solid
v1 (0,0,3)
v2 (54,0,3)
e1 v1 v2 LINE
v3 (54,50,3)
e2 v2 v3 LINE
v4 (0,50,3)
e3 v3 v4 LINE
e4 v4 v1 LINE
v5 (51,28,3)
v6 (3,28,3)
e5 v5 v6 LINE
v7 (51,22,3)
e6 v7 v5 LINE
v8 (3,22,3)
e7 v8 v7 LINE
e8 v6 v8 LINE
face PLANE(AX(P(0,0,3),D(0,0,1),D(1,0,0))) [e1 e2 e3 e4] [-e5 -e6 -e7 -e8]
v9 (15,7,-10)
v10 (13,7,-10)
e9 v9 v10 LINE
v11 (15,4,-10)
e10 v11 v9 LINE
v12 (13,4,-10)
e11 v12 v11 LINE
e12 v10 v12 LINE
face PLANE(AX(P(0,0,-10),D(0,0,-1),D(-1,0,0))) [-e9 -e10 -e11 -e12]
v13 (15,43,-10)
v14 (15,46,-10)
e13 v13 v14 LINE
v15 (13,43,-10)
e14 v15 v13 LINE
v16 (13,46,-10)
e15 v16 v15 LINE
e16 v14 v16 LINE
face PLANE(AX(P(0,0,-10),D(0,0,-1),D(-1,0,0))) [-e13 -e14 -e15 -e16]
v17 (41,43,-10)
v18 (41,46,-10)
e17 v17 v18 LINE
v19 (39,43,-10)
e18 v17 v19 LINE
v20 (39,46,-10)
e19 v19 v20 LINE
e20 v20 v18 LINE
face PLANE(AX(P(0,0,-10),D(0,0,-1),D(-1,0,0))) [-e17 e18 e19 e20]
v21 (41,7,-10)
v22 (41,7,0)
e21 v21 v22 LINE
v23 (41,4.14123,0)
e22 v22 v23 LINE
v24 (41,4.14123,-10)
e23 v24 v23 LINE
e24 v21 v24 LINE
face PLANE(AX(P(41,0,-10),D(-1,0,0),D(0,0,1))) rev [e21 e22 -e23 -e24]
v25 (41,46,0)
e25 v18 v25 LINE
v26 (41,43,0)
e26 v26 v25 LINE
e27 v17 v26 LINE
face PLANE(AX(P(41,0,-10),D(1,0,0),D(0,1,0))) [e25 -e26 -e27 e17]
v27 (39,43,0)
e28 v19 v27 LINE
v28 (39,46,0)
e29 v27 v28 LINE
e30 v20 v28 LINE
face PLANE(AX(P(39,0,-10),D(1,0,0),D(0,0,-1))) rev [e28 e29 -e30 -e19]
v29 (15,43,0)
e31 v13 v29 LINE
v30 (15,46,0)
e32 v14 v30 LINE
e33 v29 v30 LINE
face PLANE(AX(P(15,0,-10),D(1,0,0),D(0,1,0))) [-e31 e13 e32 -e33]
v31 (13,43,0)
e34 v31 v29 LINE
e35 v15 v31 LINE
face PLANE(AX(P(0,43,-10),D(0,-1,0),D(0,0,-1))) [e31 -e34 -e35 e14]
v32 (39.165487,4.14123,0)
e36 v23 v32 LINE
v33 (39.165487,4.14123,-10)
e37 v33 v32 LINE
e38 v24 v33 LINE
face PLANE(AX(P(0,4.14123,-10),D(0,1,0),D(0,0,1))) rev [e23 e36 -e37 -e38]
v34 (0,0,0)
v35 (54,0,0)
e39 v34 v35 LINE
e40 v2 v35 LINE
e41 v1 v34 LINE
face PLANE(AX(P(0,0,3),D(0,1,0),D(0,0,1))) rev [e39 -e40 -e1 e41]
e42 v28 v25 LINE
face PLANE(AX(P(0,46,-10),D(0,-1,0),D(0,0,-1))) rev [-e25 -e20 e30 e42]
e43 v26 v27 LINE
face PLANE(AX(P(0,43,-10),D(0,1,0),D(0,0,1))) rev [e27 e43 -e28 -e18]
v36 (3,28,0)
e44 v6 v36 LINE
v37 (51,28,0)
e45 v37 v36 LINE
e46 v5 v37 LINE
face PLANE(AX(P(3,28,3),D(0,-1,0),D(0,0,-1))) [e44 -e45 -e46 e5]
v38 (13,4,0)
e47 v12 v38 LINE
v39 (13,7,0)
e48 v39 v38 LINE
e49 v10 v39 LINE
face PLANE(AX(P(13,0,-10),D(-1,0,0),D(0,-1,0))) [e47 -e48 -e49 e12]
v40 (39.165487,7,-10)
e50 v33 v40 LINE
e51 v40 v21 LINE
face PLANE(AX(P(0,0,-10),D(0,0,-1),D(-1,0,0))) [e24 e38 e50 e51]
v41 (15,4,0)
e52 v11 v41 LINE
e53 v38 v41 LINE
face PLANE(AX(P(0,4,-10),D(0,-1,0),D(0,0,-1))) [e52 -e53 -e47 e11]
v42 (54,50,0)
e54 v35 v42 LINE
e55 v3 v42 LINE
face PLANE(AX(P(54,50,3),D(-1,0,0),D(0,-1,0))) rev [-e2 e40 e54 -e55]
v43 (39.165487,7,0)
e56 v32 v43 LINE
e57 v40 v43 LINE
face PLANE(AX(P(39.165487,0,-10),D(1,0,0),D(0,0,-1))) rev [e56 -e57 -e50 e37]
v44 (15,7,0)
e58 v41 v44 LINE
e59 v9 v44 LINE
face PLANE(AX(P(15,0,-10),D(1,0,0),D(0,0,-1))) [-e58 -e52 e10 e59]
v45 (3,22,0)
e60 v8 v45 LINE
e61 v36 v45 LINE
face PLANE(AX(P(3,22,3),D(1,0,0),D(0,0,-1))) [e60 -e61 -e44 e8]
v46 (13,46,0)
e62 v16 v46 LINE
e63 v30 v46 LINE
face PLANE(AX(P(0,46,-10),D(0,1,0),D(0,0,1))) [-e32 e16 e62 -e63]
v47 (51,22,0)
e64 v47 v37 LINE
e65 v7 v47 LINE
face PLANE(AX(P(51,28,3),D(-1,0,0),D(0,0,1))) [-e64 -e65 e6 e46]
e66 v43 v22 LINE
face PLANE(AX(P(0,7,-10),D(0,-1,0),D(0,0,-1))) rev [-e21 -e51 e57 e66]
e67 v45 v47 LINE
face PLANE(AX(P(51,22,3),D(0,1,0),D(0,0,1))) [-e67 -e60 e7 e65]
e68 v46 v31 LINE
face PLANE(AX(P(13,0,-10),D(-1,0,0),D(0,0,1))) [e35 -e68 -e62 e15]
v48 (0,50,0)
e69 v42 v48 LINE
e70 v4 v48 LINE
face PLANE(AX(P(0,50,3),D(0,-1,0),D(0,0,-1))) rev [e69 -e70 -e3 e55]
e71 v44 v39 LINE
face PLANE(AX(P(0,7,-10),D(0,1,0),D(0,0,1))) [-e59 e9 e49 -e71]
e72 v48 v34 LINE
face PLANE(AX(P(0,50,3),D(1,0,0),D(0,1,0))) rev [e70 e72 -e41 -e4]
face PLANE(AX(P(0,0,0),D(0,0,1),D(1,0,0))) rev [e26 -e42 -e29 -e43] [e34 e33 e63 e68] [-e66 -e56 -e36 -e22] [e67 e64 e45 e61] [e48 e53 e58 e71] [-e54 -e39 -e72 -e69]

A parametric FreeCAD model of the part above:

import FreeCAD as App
import Part
import Sketcher

doc = App.newDocument("Part")
params = doc.addObject("Spreadsheet::Sheet", "Params")
for row, (alias, value) in enumerate([
    ("sketch1_width", "54 mm"),
    ("sketch1_width2", "48 mm"),
    ("sketch1_height", "50 mm"),
    ("sketch1_height2", "6 mm"),
    ("pad1_length", "3 mm"),
    ("sketch2_width", "2 mm"),
    ("sketch2_height", "3 mm"),
    ("pad2_length", "10 mm"),
], start=1):
    params.set(f"A{row}", alias)
    params.set(f"B{row}", "=" + value)
    params.setAlias(f"B{row}", alias)

body = doc.addObject("PartDesign::Body", "Body")

# Sketch on XY plane
sketch1 = body.newObject("Sketcher::SketchObject", "Sketch")
sketch1.AttachmentSupport = (doc.getObject("XY_Plane"), [""])
sketch1.MapMode = "FlatFace"
sketch1.addGeometry([
    Part.LineSegment(App.Vector(0, 50, 0), App.Vector(0, 0, 0)),  # 0
    Part.LineSegment(App.Vector(0, 0, 0), App.Vector(54, 0, 0)),  # 1
    Part.LineSegment(App.Vector(54, 0, 0), App.Vector(54, 50, 0)),  # 2
    Part.LineSegment(App.Vector(54, 50, 0), App.Vector(0, 50, 0)),  # 3
    Part.LineSegment(App.Vector(51, 22, 0), App.Vector(3, 22, 0)),  # 4
    Part.LineSegment(App.Vector(3, 22, 0), App.Vector(3, 28, 0)),  # 5
    Part.LineSegment(App.Vector(3, 28, 0), App.Vector(51, 28, 0)),  # 6
    Part.LineSegment(App.Vector(51, 28, 0), App.Vector(51, 22, 0)),  # 7
], False)
sketch1.addConstraint([
    Sketcher.Constraint("Coincident", 0, 2, 1, 1),
    Sketcher.Constraint("Coincident", 1, 2, 2, 1),
    Sketcher.Constraint("Coincident", 2, 2, 3, 1),
    Sketcher.Constraint("Coincident", 3, 2, 0, 1),
    Sketcher.Constraint("Coincident", 4, 2, 5, 1),
    Sketcher.Constraint("Coincident", 5, 2, 6, 1),
    Sketcher.Constraint("Coincident", 6, 2, 7, 1),
    Sketcher.Constraint("Coincident", 7, 2, 4, 1),
    Sketcher.Constraint("Vertical", 0),
    Sketcher.Constraint("Horizontal", 1),
    Sketcher.Constraint("Vertical", 2),
    Sketcher.Constraint("Horizontal", 3),
    Sketcher.Constraint("Horizontal", 4),
    Sketcher.Constraint("Vertical", 5),
    Sketcher.Constraint("Horizontal", 6),
    Sketcher.Constraint("Vertical", 7),
    Sketcher.Constraint("Coincident", 0, 2, -1, 1),
    Sketcher.Constraint("DistanceX", 1, 1, 1, 2, 54.0),
    Sketcher.Constraint("DistanceX", 4, 2, 4, 1, 48.0),
    Sketcher.Constraint("DistanceY", 0, 2, 0, 1, 50.0),
    Sketcher.Constraint("DistanceY", 5, 1, 5, 2, 6.0),
    Sketcher.Constraint("DistanceX", -1, 1, 4, 2, 3.0),
    Sketcher.Constraint("DistanceY", -1, 1, 4, 2, 22.0),
])
sketch1.setExpression("Constraints[17]", "Params.sketch1_width")
sketch1.setExpression("Constraints[18]", "Params.sketch1_width2")
sketch1.setExpression("Constraints[19]", "Params.sketch1_height")
sketch1.setExpression("Constraints[20]", "Params.sketch1_height2")
pad1 = body.newObject("PartDesign::Pad", "Pad")
pad1.Profile = sketch1
pad1.setExpression("Length", "Params.pad1_length")

# Sketch on XY plane
sketch2 = body.newObject("Sketcher::SketchObject", "Sketch001")
sketch2.AttachmentSupport = (doc.getObject("XY_Plane"), [""])
sketch2.MapMode = "FlatFace"
sketch2.addGeometry([
    Part.LineSegment(App.Vector(41, 46, 0), App.Vector(41, 43, 0)),  # 0
    Part.LineSegment(App.Vector(41, 43, 0), App.Vector(39, 43, 0)),  # 1
    Part.LineSegment(App.Vector(39, 43, 0), App.Vector(39, 46, 0)),  # 2
    Part.LineSegment(App.Vector(39, 46, 0), App.Vector(41, 46, 0)),  # 3
    Part.LineSegment(App.Vector(15, 46, 0), App.Vector(15, 43, 0)),  # 4
    Part.LineSegment(App.Vector(15, 43, 0), App.Vector(13, 43, 0)),  # 5
    Part.LineSegment(App.Vector(13, 43, 0), App.Vector(13, 46, 0)),  # 6
    Part.LineSegment(App.Vector(13, 46, 0), App.Vector(15, 46, 0)),  # 7
    Part.LineSegment(App.Vector(41, 7, 0), App.Vector(41, 4.14123, 0)),  # 8
    Part.LineSegment(App.Vector(41, 4.14123, 0), App.Vector(39.165487, 4.14123, 0)),  # 9
    Part.LineSegment(App.Vector(39.165487, 4.14123, 0), App.Vector(39.165487, 7, 0)),  # 10
    Part.LineSegment(App.Vector(39.165487, 7, 0), App.Vector(41, 7, 0)),  # 11
    Part.LineSegment(App.Vector(15, 7, 0), App.Vector(15, 4, 0)),  # 12
    Part.LineSegment(App.Vector(15, 4, 0), App.Vector(13, 4, 0)),  # 13
    Part.LineSegment(App.Vector(13, 4, 0), App.Vector(13, 7, 0)),  # 14
    Part.LineSegment(App.Vector(13, 7, 0), App.Vector(15, 7, 0)),  # 15
], False)
sketch2.addConstraint([
    Sketcher.Constraint("Coincident", 0, 2, 1, 1),
    Sketcher.Constraint("Coincident", 1, 2, 2, 1),
    Sketcher.Constraint("Coincident", 2, 2, 3, 1),
    Sketcher.Constraint("Coincident", 3, 2, 0, 1),
    Sketcher.Constraint("Coincident", 4, 2, 5, 1),
    Sketcher.Constraint("Coincident", 5, 2, 6, 1),
    Sketcher.Constraint("Coincident", 6, 2, 7, 1),
    Sketcher.Constraint("Coincident", 7, 2, 4, 1),
    Sketcher.Constraint("Coincident", 8, 2, 9, 1),
    Sketcher.Constraint("Coincident", 9, 2, 10, 1),
    Sketcher.Constraint("Coincident", 10, 2, 11, 1),
    Sketcher.Constraint("Coincident", 11, 2, 8, 1),
    Sketcher.Constraint("Coincident", 12, 2, 13, 1),
    Sketcher.Constraint("Coincident", 13, 2, 14, 1),
    Sketcher.Constraint("Coincident", 14, 2, 15, 1),
    Sketcher.Constraint("Coincident", 15, 2, 12, 1),
    Sketcher.Constraint("Vertical", 0),
    Sketcher.Constraint("Horizontal", 1),
    Sketcher.Constraint("Vertical", 2),
    Sketcher.Constraint("Horizontal", 3),
    Sketcher.Constraint("Vertical", 4),
    Sketcher.Constraint("Horizontal", 5),
    Sketcher.Constraint("Vertical", 6),
    Sketcher.Constraint("Horizontal", 7),
    Sketcher.Constraint("Vertical", 8),
    Sketcher.Constraint("Horizontal", 9),
    Sketcher.Constraint("Vertical", 10),
    Sketcher.Constraint("Horizontal", 11),
    Sketcher.Constraint("Vertical", 12),
    Sketcher.Constraint("Horizontal", 13),
    Sketcher.Constraint("Vertical", 14),
    Sketcher.Constraint("Horizontal", 15),
    Sketcher.Constraint("Horizontal", 1, 2, 4, 2),
    Sketcher.Constraint("Horizontal", 3, 2, 6, 2),
    Sketcher.Constraint("Horizontal", 11, 2, 14, 2),
    Sketcher.Constraint("Vertical", 3, 2, 8, 2),
    Sketcher.Constraint("Vertical", 7, 2, 12, 2),
    Sketcher.Constraint("Vertical", 6, 2, 13, 2),
    Sketcher.Constraint("Equal", 3, 5),
    Sketcher.Constraint("Equal", 6, 12),
    Sketcher.Constraint("DistanceX", 1, 2, 1, 1, 2.0),
    Sketcher.Constraint("DistanceY", 0, 2, 0, 1, 3.0),
    Sketcher.Constraint("DistanceX", -1, 1, 0, 2, 41.0),
    Sketcher.Constraint("DistanceY", -1, 1, 0, 2, 43.0),
    Sketcher.Constraint("DistanceX", -1, 1, 4, 2, 15.0),
    Sketcher.Constraint("DistanceY", -1, 1, 10, 2, 7.0),
    Sketcher.Constraint("DistanceY", 8, 2, 8, 1, 2.85877),
    Sketcher.Constraint("DistanceX", 9, 2, 9, 1, 1.834513),
])
sketch2.setExpression("Constraints[40]", "Params.sketch2_width")
sketch2.setExpression("Constraints[41]", "Params.sketch2_height")
pad2 = body.newObject("PartDesign::Pad", "Pad001")
pad2.Profile = sketch2
pad2.setExpression("Length", "Params.pad2_length")
pad2.Reversed = True

doc.recompute()
